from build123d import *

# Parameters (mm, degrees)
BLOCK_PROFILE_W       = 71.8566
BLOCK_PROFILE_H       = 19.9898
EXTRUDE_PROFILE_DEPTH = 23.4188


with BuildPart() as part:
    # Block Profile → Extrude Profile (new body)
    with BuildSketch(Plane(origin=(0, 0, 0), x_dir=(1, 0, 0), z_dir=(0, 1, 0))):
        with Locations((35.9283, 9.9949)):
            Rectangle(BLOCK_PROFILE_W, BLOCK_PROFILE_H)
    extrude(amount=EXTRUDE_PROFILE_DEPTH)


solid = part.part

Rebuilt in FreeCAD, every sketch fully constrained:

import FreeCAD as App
import Part
import Sketcher

V = App.Vector
Q = App.Units.Quantity

doc = App.newDocument("Part")
params = doc.addObject("Spreadsheet::Sheet", "Params")
for row, (alias, value) in enumerate([
    ("sketch1_width", "2.829 in"),
    ("sketch1_height", "0.787 in"),
    ("pad1_length", "0.922 in"),
], start=1):
    params.set(f"A{row}", alias)
    params.set(f"B{row}", "=" + value)
    params.setAlias(f"B{row}", alias)

body = doc.addObject("PartDesign::Body", "Body")

sketch1 = doc.addObject("Sketcher::SketchObject", "Sketch")
body.addObject(sketch1)
sketch1.AttachmentSupport = (doc.XZ_Plane, [""])
sketch1.MapMode = "FlatFace"
sketch1.addGeometry([
    Part.LineSegment(V(0, -20, 0), V(0, 0, 0)),
    Part.LineSegment(V(0, 0, 0), V(72, 0, 0)),
    Part.LineSegment(V(72, 0, 0), V(72, -20, 0)),
    Part.LineSegment(V(72, -20, 0), V(0, -20, 0)),
], False)
sketch1.addConstraint([
    Sketcher.Constraint("Coincident", 0, 2, 1, 1),
    Sketcher.Constraint("Coincident", 1, 2, 2, 1),
    Sketcher.Constraint("Coincident", 2, 2, 3, 1),
    Sketcher.Constraint("Coincident", 3, 2, 0, 1),
    Sketcher.Constraint("Vertical", 0),
    Sketcher.Constraint("Horizontal", 1),
    Sketcher.Constraint("Vertical", 2),
    Sketcher.Constraint("Horizontal", 3),
    Sketcher.Constraint("Coincident", 0, 2, -1, 1),
    Sketcher.Constraint("DistanceX", 1, 1, 1, 2, Q("2.829 in")),
    Sketcher.Constraint("DistanceY", 0, 1, 0, 2, Q("0.787 in")),
])
sketch1.setExpression("Constraints[9]", "Params.sketch1_width")
sketch1.setExpression("Constraints[10]", "Params.sketch1_height")
pad1 = doc.addObject("PartDesign::Pad", "Pad")
body.addObject(pad1)
pad1.Profile = sketch1
pad1.setExpression("Length", "Params.pad1_length")
pad1.Reversed = True

doc.recompute()
